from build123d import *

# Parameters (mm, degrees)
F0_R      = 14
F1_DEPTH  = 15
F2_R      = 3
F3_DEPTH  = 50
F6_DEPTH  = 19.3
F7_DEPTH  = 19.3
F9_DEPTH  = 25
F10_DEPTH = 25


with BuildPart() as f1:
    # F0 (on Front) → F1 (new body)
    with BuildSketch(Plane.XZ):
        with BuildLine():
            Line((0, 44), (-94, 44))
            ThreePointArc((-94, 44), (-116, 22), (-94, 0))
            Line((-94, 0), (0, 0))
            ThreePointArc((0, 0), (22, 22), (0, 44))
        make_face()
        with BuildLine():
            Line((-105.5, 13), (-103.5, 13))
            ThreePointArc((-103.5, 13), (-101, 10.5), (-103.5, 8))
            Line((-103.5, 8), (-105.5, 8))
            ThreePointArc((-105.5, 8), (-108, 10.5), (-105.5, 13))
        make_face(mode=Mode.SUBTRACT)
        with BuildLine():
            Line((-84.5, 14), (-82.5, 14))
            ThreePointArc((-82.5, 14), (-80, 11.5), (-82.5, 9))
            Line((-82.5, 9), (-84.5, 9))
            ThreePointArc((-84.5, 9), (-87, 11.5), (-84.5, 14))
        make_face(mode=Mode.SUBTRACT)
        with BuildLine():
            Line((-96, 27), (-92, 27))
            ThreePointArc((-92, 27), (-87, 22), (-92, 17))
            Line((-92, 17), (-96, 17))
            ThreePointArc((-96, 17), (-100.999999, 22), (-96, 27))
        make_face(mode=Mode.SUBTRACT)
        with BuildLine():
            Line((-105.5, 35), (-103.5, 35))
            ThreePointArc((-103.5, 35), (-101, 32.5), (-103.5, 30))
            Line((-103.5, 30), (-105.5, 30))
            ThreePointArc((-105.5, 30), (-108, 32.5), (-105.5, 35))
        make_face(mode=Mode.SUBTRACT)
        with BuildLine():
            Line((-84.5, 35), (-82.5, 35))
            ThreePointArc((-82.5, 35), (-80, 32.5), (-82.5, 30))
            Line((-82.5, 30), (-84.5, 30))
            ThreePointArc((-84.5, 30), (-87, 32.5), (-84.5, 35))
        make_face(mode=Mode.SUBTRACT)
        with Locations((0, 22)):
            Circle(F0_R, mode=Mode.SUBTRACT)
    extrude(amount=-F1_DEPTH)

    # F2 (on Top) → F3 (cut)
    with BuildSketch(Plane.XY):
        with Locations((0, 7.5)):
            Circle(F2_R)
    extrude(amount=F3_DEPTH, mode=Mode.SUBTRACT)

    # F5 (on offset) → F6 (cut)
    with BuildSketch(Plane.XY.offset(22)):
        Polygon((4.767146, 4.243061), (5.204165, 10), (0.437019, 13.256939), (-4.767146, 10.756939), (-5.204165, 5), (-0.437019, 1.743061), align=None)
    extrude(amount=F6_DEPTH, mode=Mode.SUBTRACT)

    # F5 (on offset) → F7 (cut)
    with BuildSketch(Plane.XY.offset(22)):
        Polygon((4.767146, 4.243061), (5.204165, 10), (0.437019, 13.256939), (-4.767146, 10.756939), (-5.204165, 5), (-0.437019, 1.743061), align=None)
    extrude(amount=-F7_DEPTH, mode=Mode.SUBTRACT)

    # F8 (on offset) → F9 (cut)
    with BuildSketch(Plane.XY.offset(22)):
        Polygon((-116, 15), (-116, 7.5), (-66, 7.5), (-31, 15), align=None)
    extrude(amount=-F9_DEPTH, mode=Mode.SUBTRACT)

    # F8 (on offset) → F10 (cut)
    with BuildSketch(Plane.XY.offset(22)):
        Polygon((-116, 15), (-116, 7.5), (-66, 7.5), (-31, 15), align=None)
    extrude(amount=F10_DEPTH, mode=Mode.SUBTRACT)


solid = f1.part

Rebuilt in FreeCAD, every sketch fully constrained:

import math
import FreeCAD as App
import Part
import Sketcher

V = App.Vector
Q = App.Units.Quantity

doc = App.newDocument("Part")
body = doc.addObject("PartDesign::Body", "Body")

# Sketch on XZ plane
sketch1 = body.newObject("Sketcher::SketchObject", "Sketch")
sketch1.AttachmentSupport = (doc.getObject("XZ_Plane"), [""])
sketch1.MapMode = "FlatFace"
sketch1.addGeometry([
    Part.LineSegment(V(0, 44, 0), V(-94, 44, 0)),  # 0
    Part.ArcOfCircle(Part.Circle(V(-94, 22, 0), V(0, 0, 1), 22), math.radians(90), math.radians(270)),  # 1
    Part.LineSegment(V(-94, 0, 0), V(0, 0, 0)),  # 2
    Part.ArcOfCircle(Part.Circle(V(0, 22, 0), V(0, 0, 1), 22), math.radians(-90), math.radians(90)),  # 3
    Part.ArcOfCircle(Part.Circle(V(-105.5, 10.5, 0), V(0, 0, 1), 2.5), math.radians(90), math.radians(270)),  # 4
    Part.LineSegment(V(-105.5, 13, 0), V(-103.5, 13, 0)),  # 5
    Part.ArcOfCircle(Part.Circle(V(-103.5, 10.5, 0), V(0, 0, 1), 2.5), math.radians(-90), math.radians(90)),  # 6
    Part.LineSegment(V(-103.5, 8, 0), V(-105.5, 8, 0)),  # 7
    Part.ArcOfCircle(Part.Circle(V(-84.5, 11.5, 0), V(0, 0, 1), 2.5), math.radians(90), math.radians(270)),  # 8
    Part.LineSegment(V(-84.5, 14, 0), V(-82.5, 14, 0)),  # 9
    Part.ArcOfCircle(Part.Circle(V(-82.5, 11.5, 0), V(0, 0, 1), 2.5), math.radians(-90), math.radians(90)),  # 10
    Part.LineSegment(V(-82.5, 9, 0), V(-84.5, 9, 0)),  # 11
    Part.ArcOfCircle(Part.Circle(V(-96, 22, 0), V(0, 0, 1), 5), math.radians(90), math.radians(270)),  # 12
    Part.LineSegment(V(-96, 27, 0), V(-92, 27, 0)),  # 13
    Part.ArcOfCircle(Part.Circle(V(-92, 22, 0), V(0, 0, 1), 5), math.radians(-90), math.radians(90)),  # 14
    Part.LineSegment(V(-92, 17, 0), V(-96, 17, 0)),  # 15
    Part.ArcOfCircle(Part.Circle(V(-105.5, 32.5, 0), V(0, 0, 1), 2.5), math.radians(90), math.radians(270)),  # 16
    Part.LineSegment(V(-105.5, 35, 0), V(-103.5, 35, 0)),  # 17
    Part.ArcOfCircle(Part.Circle(V(-103.5, 32.5, 0), V(0, 0, 1), 2.5), math.radians(-90), math.radians(90)),  # 18
    Part.LineSegment(V(-103.5, 30, 0), V(-105.5, 30, 0)),  # 19
    Part.ArcOfCircle(Part.Circle(V(-84.5, 32.5, 0), V(0, 0, 1), 2.5), math.radians(90), math.radians(270)),  # 20
    Part.LineSegment(V(-84.5, 35, 0), V(-82.5, 35, 0)),  # 21
    Part.ArcOfCircle(Part.Circle(V(-82.5, 32.5, 0), V(0, 0, 1), 2.5), math.radians(-90), math.radians(90)),  # 22
    Part.LineSegment(V(-82.5, 30, 0), V(-84.5, 30, 0)),  # 23
    Part.Circle(V(0, 22, 0), V(0, 0, 1), 14),  # 24
], False)
sketch1.addConstraint([
    Sketcher.Constraint("Tangent", 0, 2, 1, 1),
    Sketcher.Constraint("Tangent", 1, 2, 2, 1),
    Sketcher.Constraint("Tangent", 2, 2, 3, 1),
    Sketcher.Constraint("Tangent", 3, 2, 0, 1),
    Sketcher.Constraint("Tangent", 4, 1, 5, 1),
    Sketcher.Constraint("Tangent", 5, 2, 6, 2),
    Sketcher.Constraint("Tangent", 6, 1, 7, 1),
    Sketcher.Constraint("Tangent", 7, 2, 4, 2),
    Sketcher.Constraint("Tangent", 8, 1, 9, 1),
    Sketcher.Constraint("Tangent", 9, 2, 10, 2),
    Sketcher.Constraint("Tangent", 10, 1, 11, 1),
    Sketcher.Constraint("Tangent", 11, 2, 8, 2),
    Sketcher.Constraint("Tangent", 12, 1, 13, 1),
    Sketcher.Constraint("Tangent", 13, 2, 14, 2),
    Sketcher.Constraint("Tangent", 14, 1, 15, 1),
    Sketcher.Constraint("Tangent", 15, 2, 12, 2),
    Sketcher.Constraint("Tangent", 16, 1, 17, 1),
    Sketcher.Constraint("Tangent", 17, 2, 18, 2),
    Sketcher.Constraint("Tangent", 18, 1, 19, 1),
    Sketcher.Constraint("Tangent", 19, 2, 16, 2),
    Sketcher.Constraint("Tangent", 20, 1, 21, 1),
    Sketcher.Constraint("Tangent", 21, 2, 22, 2),
    Sketcher.Constraint("Tangent", 22, 1, 23, 1),
    Sketcher.Constraint("Tangent", 23, 2, 20, 2),
    Sketcher.Constraint("Horizontal", 0),
    Sketcher.Constraint("Horizontal", 2),
    Sketcher.Constraint("Horizontal", 5),
    Sketcher.Constraint("Horizontal", 7),
    Sketcher.Constraint("Horizontal", 9),
    Sketcher.Constraint("Horizontal", 11),
    Sketcher.Constraint("Horizontal", 13),
    Sketcher.Constraint("Horizontal", 15),
    Sketcher.Constraint("Horizontal", 17),
    Sketcher.Constraint("Horizontal", 19),
    Sketcher.Constraint("Horizontal", 21),
    Sketcher.Constraint("Horizontal", 23),
    Sketcher.Constraint("Coincident", 2, 2, -1, 1),
    Sketcher.Constraint("Coincident", 24, 3, 3, 3),
    Sketcher.Constraint("Equal", 6, 8),
    Sketcher.Constraint("Equal", 10, 16),
    Sketcher.Constraint("Equal", 18, 20),
    Sketcher.Constraint("Horizontal", 3, 3, 12, 3),
    Sketcher.Constraint("Horizontal", 18, 3, 20, 3),
    Sketcher.Constraint("Vertical", 4, 3, 16, 3),
    Sketcher.Constraint("Vertical", 6, 3, 18, 3),
    Sketcher.Constraint("Vertical", 8, 3, 20, 3),
    Sketcher.Constraint("Vertical", 10, 3, 22, 3),
    Sketcher.Constraint("Equal", 7, 9),
    Sketcher.Constraint("Diameter", 24, Q("28 mm")),
    Sketcher.Constraint("Radius", 1, Q("22 mm")),
    Sketcher.Constraint("Radius", 12, Q("5 mm")),
    Sketcher.Constraint("Radius", 4, Q("2.5 mm")),
    Sketcher.Constraint("DistanceX", 0, 2, 0, 1, Q("94 mm")),
    Sketcher.Constraint("DistanceX", 5, 1, 5, 2, Q("2 mm")),
    Sketcher.Constraint("DistanceX", 13, 1, 13, 2, Q("4 mm")),
    Sketcher.Constraint("DistanceX", 12, 3, -1, 1, Q("95.999999 mm")),
    Sketcher.Constraint("DistanceY", -1, 1, 4, 1, Q("13 mm")),
    Sketcher.Constraint("DistanceY", -1, 1, 8, 1, Q("14 mm")),
    Sketcher.Constraint("DistanceY", -1, 1, 16, 1, Q("35 mm")),
    Sketcher.Constraint("DistanceX", 6, 3, 8, 3, Q("19 mm")),
    Sketcher.Constraint("DistanceX", 4, 3, -1, 1, Q("105.5 mm")),
])
pad1 = body.newObject("PartDesign::Pad", "Pad")
pad1.Profile = sketch1
pad1.Length = 15
pad1.Reversed = True

# Sketch on XY plane
sketch2 = body.newObject("Sketcher::SketchObject", "Sketch001")
sketch2.AttachmentSupport = (doc.getObject("XY_Plane"), [""])
sketch2.MapMode = "FlatFace"
sketch2.addGeometry(Part.Circle(V(0, 7.5, 0), V(0, 0, 1), 3), False)
sketch2.addConstraint([
    Sketcher.Constraint("PointOnObject", 0, 3, -2),
    Sketcher.Constraint("Diameter", 0, Q("6 mm")),
    Sketcher.Constraint("DistanceY", -1, 1, 0, 3, Q("7.5 mm")),
])
pocket1 = body.newObject("PartDesign::Pocket", "Pocket")
pocket1.Profile = sketch2
pocket1.Length = 50
pocket1.Reversed = True

# Sketch on XY plane
sketch3 = body.newObject("Sketcher::SketchObject", "Sketch002")
sketch3.AttachmentSupport = (doc.getObject("XY_Plane"), [""])
sketch3.MapMode = "FlatFace"
sketch3.AttachmentOffset = App.Placement(V(0, 0, 22), App.Rotation())
sketch3.addGeometry([
    Part.LineSegment(V(5, 4, 0), V(5, 10, 0)),  # 0
    Part.LineSegment(V(5, 10, 0), V(0, 13, 0)),  # 1
    Part.LineSegment(V(0, 13, 0), V(-5, 11, 0)),  # 2
    Part.LineSegment(V(-5, 11, 0), V(-5, 5, 0)),  # 3
    Part.LineSegment(V(-5, 5, 0), V(0, 2, 0)),  # 4
    Part.LineSegment(V(0, 2, 0), V(5, 4, 0)),  # 5
], False)
sketch3.addConstraint([
    Sketcher.Constraint("Coincident", 0, 2, 1, 1),
    Sketcher.Constraint("Coincident", 1, 2, 2, 1),
    Sketcher.Constraint("Coincident", 2, 2, 3, 1),
    Sketcher.Constraint("Coincident", 3, 2, 4, 1),
    Sketcher.Constraint("Coincident", 4, 2, 5, 1),
    Sketcher.Constraint("Coincident", 5, 2, 0, 1),
    Sketcher.Constraint("Parallel", 0, 3),
    Sketcher.Constraint("Parallel", 1, 4),
    Sketcher.Constraint("Parallel", 2, 5),
    Sketcher.Constraint("Equal", 0, 1),
    Sketcher.Constraint("Equal", 1, 2),
    Sketcher.Constraint("Equal", 2, 3),
    Sketcher.Constraint("DistanceY", -1, 1, 0, 2, Q("10 mm")),
    Sketcher.Constraint("DistanceY", -1, 1, 3, 2, Q("5 mm")),
    Sketcher.Constraint("DistanceY", 2, 2, 1, 2, Q("2.5 mm")),
    Sketcher.Constraint("DistanceX", -1, 1, 1, 2, Q("0.437019 mm")),
    Sketcher.Constraint("DistanceY", -1, 1, 1, 2, Q("13.256939 mm")),
    Sketcher.Constraint("DistanceX", 4, 2, -1, 1, Q("0.437019 mm")),
])
pocket2 = body.newObject("PartDesign::Pocket", "Pocket001")
pocket2.Profile = sketch3
pocket2.Length = 19.3
pocket2.Reversed = True

# Sketch on XY plane
sketch4 = body.newObject("Sketcher::SketchObject", "Sketch003")
sketch4.AttachmentSupport = (doc.getObject("XY_Plane"), [""])
sketch4.MapMode = "FlatFace"
sketch4.AttachmentOffset = App.Placement(V(0, 0, 22), App.Rotation())
sketch4.addGeometry([
    Part.LineSegment(V(5, 4, 0), V(5, 10, 0)),  # 0
    Part.LineSegment(V(5, 10, 0), V(0, 13, 0)),  # 1
    Part.LineSegment(V(0, 13, 0), V(-5, 11, 0)),  # 2
    Part.LineSegment(V(-5, 11, 0), V(-5, 5, 0)),  # 3
    Part.LineSegment(V(-5, 5, 0), V(0, 2, 0)),  # 4
    Part.LineSegment(V(0, 2, 0), V(5, 4, 0)),  # 5
], False)
sketch4.addConstraint([
    Sketcher.Constraint("Coincident", 0, 2, 1, 1),
    Sketcher.Constraint("Coincident", 1, 2, 2, 1),
    Sketcher.Constraint("Coincident", 2, 2, 3, 1),
    Sketcher.Constraint("Coincident", 3, 2, 4, 1),
    Sketcher.Constraint("Coincident", 4, 2, 5, 1),
    Sketcher.Constraint("Coincident", 5, 2, 0, 1),
    Sketcher.Constraint("Parallel", 0, 3),
    Sketcher.Constraint("Parallel", 1, 4),
    Sketcher.Constraint("Parallel", 2, 5),
    Sketcher.Constraint("Equal", 0, 1),
    Sketcher.Constraint("Equal", 1, 2),
    Sketcher.Constraint("Equal", 2, 3),
    Sketcher.Constraint("DistanceY", -1, 1, 0, 2, Q("10 mm")),
    Sketcher.Constraint("DistanceY", -1, 1, 3, 2, Q("5 mm")),
    Sketcher.Constraint("DistanceY", 2, 2, 1, 2, Q("2.5 mm")),
    Sketcher.Constraint("DistanceX", -1, 1, 1, 2, Q("0.437019 mm")),
    Sketcher.Constraint("DistanceY", -1, 1, 1, 2, Q("13.256939 mm")),
    Sketcher.Constraint("DistanceX", 4, 2, -1, 1, Q("0.437019 mm")),
])
pocket3 = body.newObject("PartDesign::Pocket", "Pocket002")
pocket3.Profile = sketch4
pocket3.Length = 19.3

# Sketch on XY plane
sketch5 = body.newObject("Sketcher::SketchObject", "Sketch004")
sketch5.AttachmentSupport = (doc.getObject("XY_Plane"), [""])
sketch5.MapMode = "FlatFace"
sketch5.AttachmentOffset = App.Placement(V(0, 0, 22), App.Rotation())
sketch5.addGeometry([
    Part.LineSegment(V(-116, 15, 0), V(-116, 8, 0)),
    Part.LineSegment(V(-116, 8, 0), V(-66, 8, 0)),
    Part.LineSegment(V(-66, 8, 0), V(-31, 15, 0)),
    Part.LineSegment(V(-31, 15, 0), V(-116, 15, 0)),
], False)
sketch5.addConstraint([
    Sketcher.Constraint("Coincident", 0, 2, 1, 1),
    Sketcher.Constraint("Coincident", 1, 2, 2, 1),
    Sketcher.Constraint("Coincident", 2, 2, 3, 1),
    Sketcher.Constraint("Coincident", 3, 2, 0, 1),
    Sketcher.Constraint("Vertical", 0),
    Sketcher.Constraint("Horizontal", 1),
    Sketcher.Constraint("Horizontal", 3),
    Sketcher.Constraint("DistanceX", 1, 1, 1, 2, Q("50 mm")),
    Sketcher.Constraint("DistanceX", 3, 2, 3, 1, Q("85 mm")),
    Sketcher.Constraint("DistanceY", 0, 2, 0, 1, Q("7.5 mm")),
    Sketcher.Constraint("DistanceX", 0, 2, -1, 1, Q("116 mm")),
    Sketcher.Constraint("DistanceY", -1, 1, 2, 2, Q("15 mm")),
])
pocket4 = body.newObject("PartDesign::Pocket", "Pocket003")
pocket4.Profile = sketch5
pocket4.Length = 25

# Sketch on XY plane
sketch6 = body.newObject("Sketcher::SketchObject", "Sketch005")
sketch6.AttachmentSupport = (doc.getObject("XY_Plane"), [""])
sketch6.MapMode = "FlatFace"
sketch6.AttachmentOffset = App.Placement(V(0, 0, 22), App.Rotation())
sketch6.addGeometry([
    Part.LineSegment(V(-116, 15, 0), V(-116, 8, 0)),
    Part.LineSegment(V(-116, 8, 0), V(-66, 8, 0)),
    Part.LineSegment(V(-66, 8, 0), V(-31, 15, 0)),
    Part.LineSegment(V(-31, 15, 0), V(-116, 15, 0)),
], False)
sketch6.addConstraint([
    Sketcher.Constraint("Coincident", 0, 2, 1, 1),
    Sketcher.Constraint("Coincident", 1, 2, 2, 1),
    Sketcher.Constraint("Coincident", 2, 2, 3, 1),
    Sketcher.Constraint("Coincident", 3, 2, 0, 1),
    Sketcher.Constraint("Vertical", 0),
    Sketcher.Constraint("Horizontal", 1),
    Sketcher.Constraint("Horizontal", 3),
    Sketcher.Constraint("DistanceX", 1, 1, 1, 2, Q("50 mm")),
    Sketcher.Constraint("DistanceX", 3, 2, 3, 1, Q("85 mm")),
    Sketcher.Constraint("DistanceY", 0, 2, 0, 1, Q("7.5 mm")),
    Sketcher.Constraint("DistanceX", 0, 2, -1, 1, Q("116 mm")),
    Sketcher.Constraint("DistanceY", -1, 1, 2, 2, Q("15 mm")),
])
pocket5 = body.newObject("PartDesign::Pocket", "Pocket004")
pocket5.Profile = sketch6
pocket5.Length = 25
pocket5.Reversed = True

doc.recompute()
